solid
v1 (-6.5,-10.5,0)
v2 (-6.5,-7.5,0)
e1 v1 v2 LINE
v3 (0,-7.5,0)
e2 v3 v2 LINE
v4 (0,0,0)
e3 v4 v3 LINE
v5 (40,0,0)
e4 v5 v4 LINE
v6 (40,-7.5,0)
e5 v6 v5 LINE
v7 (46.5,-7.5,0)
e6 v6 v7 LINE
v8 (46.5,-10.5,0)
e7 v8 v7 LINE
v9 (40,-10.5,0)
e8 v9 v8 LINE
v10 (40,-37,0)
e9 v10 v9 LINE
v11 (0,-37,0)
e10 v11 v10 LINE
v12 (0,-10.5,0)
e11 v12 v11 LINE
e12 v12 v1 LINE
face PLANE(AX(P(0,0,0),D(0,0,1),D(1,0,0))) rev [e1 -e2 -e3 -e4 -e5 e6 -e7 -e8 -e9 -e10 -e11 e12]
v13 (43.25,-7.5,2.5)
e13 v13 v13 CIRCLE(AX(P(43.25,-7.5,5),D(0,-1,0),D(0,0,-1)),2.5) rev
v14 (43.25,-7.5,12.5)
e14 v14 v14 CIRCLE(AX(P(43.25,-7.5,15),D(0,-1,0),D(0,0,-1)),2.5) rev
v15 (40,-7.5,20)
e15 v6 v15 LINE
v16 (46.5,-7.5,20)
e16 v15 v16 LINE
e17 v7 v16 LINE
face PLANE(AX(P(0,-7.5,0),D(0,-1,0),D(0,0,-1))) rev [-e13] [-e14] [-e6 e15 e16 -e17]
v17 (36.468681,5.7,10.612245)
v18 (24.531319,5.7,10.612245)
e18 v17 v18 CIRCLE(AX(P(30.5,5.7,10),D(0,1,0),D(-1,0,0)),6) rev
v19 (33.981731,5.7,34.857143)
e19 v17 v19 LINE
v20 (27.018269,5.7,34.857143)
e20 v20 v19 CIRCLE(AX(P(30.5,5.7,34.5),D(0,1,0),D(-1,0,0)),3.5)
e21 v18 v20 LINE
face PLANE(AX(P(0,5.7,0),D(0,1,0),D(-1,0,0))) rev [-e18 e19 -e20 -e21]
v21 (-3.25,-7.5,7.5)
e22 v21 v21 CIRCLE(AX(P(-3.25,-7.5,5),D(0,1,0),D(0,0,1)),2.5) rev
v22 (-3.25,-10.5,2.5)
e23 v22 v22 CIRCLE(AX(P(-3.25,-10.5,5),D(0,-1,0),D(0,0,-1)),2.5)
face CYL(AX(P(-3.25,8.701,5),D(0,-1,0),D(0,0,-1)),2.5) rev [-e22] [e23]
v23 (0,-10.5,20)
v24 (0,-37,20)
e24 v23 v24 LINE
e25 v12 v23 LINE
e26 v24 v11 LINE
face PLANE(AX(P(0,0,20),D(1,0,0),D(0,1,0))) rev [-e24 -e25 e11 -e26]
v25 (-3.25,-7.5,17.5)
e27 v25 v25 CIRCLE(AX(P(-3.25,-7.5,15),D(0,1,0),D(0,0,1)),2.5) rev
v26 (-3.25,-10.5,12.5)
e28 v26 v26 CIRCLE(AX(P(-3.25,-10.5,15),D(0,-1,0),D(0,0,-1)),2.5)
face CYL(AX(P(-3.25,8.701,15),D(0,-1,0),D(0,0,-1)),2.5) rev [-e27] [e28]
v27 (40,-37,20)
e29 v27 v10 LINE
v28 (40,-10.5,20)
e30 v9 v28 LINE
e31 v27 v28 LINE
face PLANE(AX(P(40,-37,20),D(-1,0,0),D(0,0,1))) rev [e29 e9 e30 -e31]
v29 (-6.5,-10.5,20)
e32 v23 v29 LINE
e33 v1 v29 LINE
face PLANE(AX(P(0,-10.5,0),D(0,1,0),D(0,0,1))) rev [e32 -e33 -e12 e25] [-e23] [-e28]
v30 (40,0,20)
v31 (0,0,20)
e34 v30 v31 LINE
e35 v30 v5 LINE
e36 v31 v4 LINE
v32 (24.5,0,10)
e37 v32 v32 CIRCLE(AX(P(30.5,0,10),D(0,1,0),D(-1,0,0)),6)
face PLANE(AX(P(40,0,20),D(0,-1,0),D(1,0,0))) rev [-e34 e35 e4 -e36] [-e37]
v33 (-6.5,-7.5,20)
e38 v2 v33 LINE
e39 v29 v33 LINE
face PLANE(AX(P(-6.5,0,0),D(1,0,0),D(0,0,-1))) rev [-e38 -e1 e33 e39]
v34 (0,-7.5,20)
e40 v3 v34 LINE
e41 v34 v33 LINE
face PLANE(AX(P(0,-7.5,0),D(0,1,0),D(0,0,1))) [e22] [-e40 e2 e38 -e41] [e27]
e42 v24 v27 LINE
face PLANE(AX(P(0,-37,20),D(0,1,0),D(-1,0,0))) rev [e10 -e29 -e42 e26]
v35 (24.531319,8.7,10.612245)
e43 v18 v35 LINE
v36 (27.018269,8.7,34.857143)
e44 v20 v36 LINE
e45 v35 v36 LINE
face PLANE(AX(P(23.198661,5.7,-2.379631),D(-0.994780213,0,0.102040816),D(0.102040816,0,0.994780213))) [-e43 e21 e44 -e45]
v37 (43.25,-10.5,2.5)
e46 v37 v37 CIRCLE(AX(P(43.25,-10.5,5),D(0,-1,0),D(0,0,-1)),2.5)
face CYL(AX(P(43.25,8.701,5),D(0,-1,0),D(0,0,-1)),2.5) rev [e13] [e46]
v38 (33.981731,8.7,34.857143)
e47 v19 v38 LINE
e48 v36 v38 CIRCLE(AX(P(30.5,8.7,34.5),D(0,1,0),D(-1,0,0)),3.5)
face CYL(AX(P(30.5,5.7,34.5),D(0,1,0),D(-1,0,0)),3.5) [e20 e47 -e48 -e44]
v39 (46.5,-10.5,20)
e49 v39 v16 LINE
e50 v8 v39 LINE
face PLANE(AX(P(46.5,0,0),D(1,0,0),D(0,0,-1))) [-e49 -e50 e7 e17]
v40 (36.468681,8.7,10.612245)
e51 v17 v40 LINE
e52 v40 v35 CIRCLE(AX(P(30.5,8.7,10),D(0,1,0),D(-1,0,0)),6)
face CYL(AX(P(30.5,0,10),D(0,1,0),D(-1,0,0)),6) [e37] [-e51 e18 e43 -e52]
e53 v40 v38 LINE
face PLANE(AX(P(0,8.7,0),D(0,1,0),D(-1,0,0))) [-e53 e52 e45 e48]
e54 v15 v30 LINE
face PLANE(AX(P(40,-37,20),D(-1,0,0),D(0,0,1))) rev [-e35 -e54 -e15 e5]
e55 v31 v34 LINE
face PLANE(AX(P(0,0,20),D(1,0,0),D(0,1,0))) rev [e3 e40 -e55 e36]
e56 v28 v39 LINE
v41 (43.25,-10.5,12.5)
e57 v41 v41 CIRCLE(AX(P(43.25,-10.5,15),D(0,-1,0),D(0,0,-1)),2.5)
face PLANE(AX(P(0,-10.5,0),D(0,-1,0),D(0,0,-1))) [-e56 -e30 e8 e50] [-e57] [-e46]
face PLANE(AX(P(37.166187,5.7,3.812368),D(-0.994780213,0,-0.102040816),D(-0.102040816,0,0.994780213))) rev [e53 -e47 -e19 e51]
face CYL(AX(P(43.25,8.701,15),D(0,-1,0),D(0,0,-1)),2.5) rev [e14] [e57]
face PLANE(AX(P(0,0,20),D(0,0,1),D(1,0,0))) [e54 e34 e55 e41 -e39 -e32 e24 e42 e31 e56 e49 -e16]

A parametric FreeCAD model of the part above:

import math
import FreeCAD as App
import Part
import Sketcher

V = App.Vector


def add_polygon(sketch, points):
    """Adds a closed chain of lines whose ends are joined by coincident constraints."""
    first, n = sketch.GeometryCount, len(points)
    for a, b in zip(points, points[1:] + points[:1]):
        sketch.addGeometry(Part.LineSegment(App.Vector(*a, 0), App.Vector(*b, 0)), False)
    for i in range(n):
        sketch.addConstraint(Sketcher.Constraint("Coincident", first + i, 2, first + (i + 1) % n, 1))

doc = App.newDocument("Part")
params = doc.addObject("Spreadsheet::Sheet", "Params")
for row, (alias, value) in enumerate([
    ("sketch1_width", "40 mm"),
    ("sketch1_height", "37 mm"),
    ("pad1_length", "20 mm"),
    ("sketch2_height", "3 mm"),
    ("sketch2_width", "6.5 mm"),
    ("pad2_length", "20 mm"),
    ("sketch3_diameter", "12 mm"),
    ("pad3_length", "8.7 mm"),
    ("sketch4_radius", "6 mm"),
    ("sketch4_radius2", "3.5 mm"),
    ("pad4_length", "3 mm"),
    ("sketch5_diameter", "5 mm"),
    ("sketch6_diameter", "5 mm"),
    ("sketch7_diameter", "5 mm"),
    ("sketch8_diameter", "5 mm"),
], start=1):
    params.set(f"A{row}", alias)
    params.set(f"B{row}", "=" + value)
    params.setAlias(f"B{row}", alias)

body = doc.addObject("PartDesign::Body", "Body")

sketch1 = body.newObject("Sketcher::SketchObject", "Sketch")
sketch1.AttachmentSupport = (doc.getObject("XY_Plane"), [""])
sketch1.MapMode = "FlatFace"
add_polygon(sketch1, [(0, 0), (0, -37), (40, -37), (40, 0)])
sketch1.addConstraint([
    Sketcher.Constraint("Vertical", 0),
    Sketcher.Constraint("Horizontal", 1),
    Sketcher.Constraint("Vertical", 2),
    Sketcher.Constraint("Horizontal", 3),
    Sketcher.Constraint("Coincident", 3, 2, -1, 1),
    Sketcher.Constraint("DistanceX", 1, 1, 1, 2, 40.0),
    Sketcher.Constraint("DistanceY", 0, 2, 0, 1, 37.0),
])
sketch1.setExpression("Constraints[9]", "Params.sketch1_width")
sketch1.setExpression("Constraints[10]", "Params.sketch1_height")
pad1 = body.newObject("PartDesign::Pad", "Pad")
pad1.Profile = sketch1
pad1.setExpression("Length", "Params.pad1_length")

sketch2 = body.newObject("Sketcher::SketchObject", "Sketch001")
sketch2.AttachmentSupport = (doc.getObject("XY_Plane"), [""])
sketch2.MapMode = "FlatFace"
sketch2.AttachmentOffset = App.Placement(V(0, 0, 20), App.Rotation())
add_polygon(sketch2, [(-6.5, -7.5), (-6.5, -10.5), (0, -10.5), (0, -7.5)])
add_polygon(sketch2, [(40, -7.5), (40, -10.5), (46.5, -10.5), (46.5, -7.5)])
sketch2.addConstraint([
    Sketcher.Constraint("Vertical", 0),
    Sketcher.Constraint("Horizontal", 1),
    Sketcher.Constraint("Vertical", 2),
    Sketcher.Constraint("Horizontal", 3),
    Sketcher.Constraint("Vertical", 4),
    Sketcher.Constraint("Horizontal", 5),
    Sketcher.Constraint("Vertical", 6),
    Sketcher.Constraint("Horizontal", 7),
    Sketcher.Constraint("PointOnObject", 1, 2, -2),
    Sketcher.Constraint("Horizontal", 1, 2, 4, 2),
    Sketcher.Constraint("Horizontal", 3, 2, 6, 2),
    Sketcher.Constraint("Equal", 3, 5),
    Sketcher.Constraint("DistanceY", 0, 2, 0, 1, 3.0),
    Sketcher.Constraint("DistanceX", 1, 1, 1, 2, 6.5),
    Sketcher.Constraint("DistanceX", -1, 1, 4, 2, 40.0),
    Sketcher.Constraint("DistanceY", 0, 2, -1, 1, 10.5),
])
sketch2.setExpression("Constraints[20]", "Params.sketch2_height")
sketch2.setExpression("Constraints[21]", "Params.sketch2_width")
pad2 = body.newObject("PartDesign::Pad", "Pad001")
pad2.Profile = sketch2
pad2.setExpression("Length", "Params.pad2_length")
pad2.Reversed = True

sketch3 = body.newObject("Sketcher::SketchObject", "Sketch002")
sketch3.AttachmentSupport = (doc.getObject("XZ_Plane"), [""])
sketch3.MapMode = "FlatFace"
sketch3.AttachmentOffset = App.Placement(V(0, 0, -8.7), App.Rotation())
sketch3.addGeometry(Part.Circle(V(30.5, 10, 0), V(0, 0, 1), 6), False)
sketch3.addConstraint([
    Sketcher.Constraint("Diameter", 0, 12.0),
    Sketcher.Constraint("DistanceY", -1, 1, 0, 3, 10.0),
    Sketcher.Constraint("DistanceX", -1, 1, 0, 3, 30.5),
])
sketch3.setExpression("Constraints[0]", "Params.sketch3_diameter")
pad3 = body.newObject("PartDesign::Pad", "Pad002")
pad3.Profile = sketch3
pad3.setExpression("Length", "Params.pad3_length")

sketch4 = body.newObject("Sketcher::SketchObject", "Sketch003")
sketch4.AttachmentSupport = (doc.getObject("XZ_Plane"), [""])
sketch4.MapMode = "FlatFace"
sketch4.AttachmentOffset = App.Placement(V(0, 0, -8.7), App.Rotation())
sketch4.addGeometry([
    Part.LineSegment(V(33.981731, 34.857143, 0), V(36.468681, 10.612245, 0)),
    Part.ArcOfCircle(Part.Circle(V(30.5, 10, 0), V(0, 0, 1), 6), math.radians(174.143298), math.radians(365.856702)),
    Part.LineSegment(V(24.531319, 10.612245, 0), V(27.018269, 34.857143, 0)),
    Part.ArcOfCircle(Part.Circle(V(30.5, 34.5, 0), V(0, 0, 1), 3.5), math.radians(5.856702), math.radians(174.143298)),
], False)
sketch4.addConstraint([
    Sketcher.Constraint("Tangent", 0, 2, 1, 2),
    Sketcher.Constraint("Tangent", 1, 1, 2, 1),
    Sketcher.Constraint("Tangent", 2, 2, 3, 2),
    Sketcher.Constraint("Tangent", 3, 1, 0, 1),
    Sketcher.Constraint("Horizontal", 0, 2, 1, 1),
    Sketcher.Constraint("Radius", 1, 6.0),
    Sketcher.Constraint("Radius", 3, 3.5),
    Sketcher.Constraint("DistanceY", -1, 1, 1, 3, 10.0),
    Sketcher.Constraint("DistanceX", -1, 1, 1, 3, 30.5),
    Sketcher.Constraint("DistanceY", -1, 1, 3, 3, 34.5),
])
sketch4.setExpression("Constraints[5]", "Params.sketch4_radius")
sketch4.setExpression("Constraints[6]", "Params.sketch4_radius2")
pad4 = body.newObject("PartDesign::Pad", "Pad003")
pad4.Profile = sketch4
pad4.setExpression("Length", "Params.pad4_length")

sketch5 = body.newObject("Sketcher::SketchObject", "Sketch004")
sketch5.AttachmentSupport = (doc.getObject("XZ_Plane"), [""])
sketch5.MapMode = "FlatFace"
sketch5.AttachmentOffset = App.Placement(V(0, 0, 10.5), App.Rotation())
sketch5.addGeometry(Part.Circle(V(43.25, 15, 0), V(0, 0, 1), 2.5), False)
sketch5.addConstraint([
    Sketcher.Constraint("Diameter", 0, 5.0),
    Sketcher.Constraint("DistanceY", -1, 1, 0, 3, 15.0),
    Sketcher.Constraint("DistanceX", -1, 1, 0, 3, 43.25),
])
sketch5.setExpression("Constraints[0]", "Params.sketch5_diameter")
pocket1 = body.newObject("PartDesign::Pocket", "Pocket")
pocket1.Profile = sketch5
pocket1.Type = "UpToFirst"

sketch6 = body.newObject("Sketcher::SketchObject", "Sketch005")
sketch6.AttachmentSupport = (doc.getObject("XZ_Plane"), [""])
sketch6.MapMode = "FlatFace"
sketch6.AttachmentOffset = App.Placement(V(0, 0, 10.5), App.Rotation())
sketch6.addGeometry(Part.Circle(V(43.25, 5, 0), V(0, 0, 1), 2.5), False)
sketch6.addConstraint([
    Sketcher.Constraint("Diameter", 0, 5.0),
    Sketcher.Constraint("DistanceY", -1, 1, 0, 3, 5.0),
    Sketcher.Constraint("DistanceX", -1, 1, 0, 3, 43.25),
])
sketch6.setExpression("Constraints[0]", "Params.sketch6_diameter")
pocket2 = body.newObject("PartDesign::Pocket", "Pocket001")
pocket2.Profile = sketch6
pocket2.Type = "UpToFirst"

sketch7 = body.newObject("Sketcher::SketchObject", "Sketch006")
sketch7.AttachmentSupport = (doc.getObject("XZ_Plane"), [""])
sketch7.MapMode = "FlatFace"
sketch7.AttachmentOffset = App.Placement(V(0, 0, 10.5), App.Rotation())
sketch7.addGeometry(Part.Circle(V(-3.25, 15, 0), V(0, 0, 1), 2.5), False)
sketch7.addConstraint([
    Sketcher.Constraint("Diameter", 0, 5.0),
    Sketcher.Constraint("DistanceY", -1, 1, 0, 3, 15.0),
    Sketcher.Constraint("DistanceX", 0, 3, -1, 1, 3.25),
])
sketch7.setExpression("Constraints[0]", "Params.sketch7_diameter")
pocket3 = body.newObject("PartDesign::Pocket", "Pocket002")
pocket3.Profile = sketch7
pocket3.Type = "UpToFirst"

sketch8 = body.newObject("Sketcher::SketchObject", "Sketch007")
sketch8.AttachmentSupport = (doc.getObject("XZ_Plane"), [""])
sketch8.MapMode = "FlatFace"
sketch8.AttachmentOffset = App.Placement(V(0, 0, 10.5), App.Rotation())
sketch8.addGeometry(Part.Circle(V(-3.25, 5, 0), V(0, 0, 1), 2.5), False)
sketch8.addConstraint([
    Sketcher.Constraint("Diameter", 0, 5.0),
    Sketcher.Constraint("DistanceY", -1, 1, 0, 3, 5.0),
    Sketcher.Constraint("DistanceX", 0, 3, -1, 1, 3.25),
])
sketch8.setExpression("Constraints[0]", "Params.sketch8_diameter")
pocket4 = body.newObject("PartDesign::Pocket", "Pocket003")
pocket4.Profile = sketch8
pocket4.Type = "UpToFirst"

doc.recompute()
